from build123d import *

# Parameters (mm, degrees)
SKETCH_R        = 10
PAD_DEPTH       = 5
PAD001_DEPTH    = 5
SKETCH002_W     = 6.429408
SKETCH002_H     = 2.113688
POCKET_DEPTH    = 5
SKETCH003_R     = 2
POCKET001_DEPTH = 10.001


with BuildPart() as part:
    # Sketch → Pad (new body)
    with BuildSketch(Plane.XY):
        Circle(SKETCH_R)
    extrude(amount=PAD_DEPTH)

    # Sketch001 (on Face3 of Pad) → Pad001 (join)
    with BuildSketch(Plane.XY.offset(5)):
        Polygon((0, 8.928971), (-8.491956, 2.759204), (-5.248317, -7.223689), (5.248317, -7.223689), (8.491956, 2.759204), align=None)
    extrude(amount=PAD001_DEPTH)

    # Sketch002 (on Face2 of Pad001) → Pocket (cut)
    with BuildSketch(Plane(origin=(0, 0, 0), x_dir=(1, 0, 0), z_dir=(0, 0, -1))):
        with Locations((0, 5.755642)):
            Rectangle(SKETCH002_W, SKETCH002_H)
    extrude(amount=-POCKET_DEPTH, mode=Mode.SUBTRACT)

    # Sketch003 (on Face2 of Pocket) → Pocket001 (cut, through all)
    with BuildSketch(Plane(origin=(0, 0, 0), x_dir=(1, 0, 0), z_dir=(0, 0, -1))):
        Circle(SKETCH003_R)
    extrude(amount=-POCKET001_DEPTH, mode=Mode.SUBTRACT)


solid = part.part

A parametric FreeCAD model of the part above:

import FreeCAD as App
import Part
import Sketcher
Q = App.Units.Quantity

doc = App.newDocument("Part")
params = doc.addObject("Spreadsheet::Sheet", "Params")
for row, (alias, value) in enumerate([
    ("sketch1_diameter", "20 mm"),
    ("pad1_length", "5 mm"),
    ("pad2_length", "5 mm"),
    ("pocket1_length", "5 mm"),
    ("sketch4_diameter", "4 mm"),
], start=1):
    params.set(f"A{row}", alias)
    params.set(f"B{row}", "=" + value)
    params.setAlias(f"B{row}", alias)

body = doc.addObject("PartDesign::Body", "Body")

# Sketch on XY plane
sketch1 = body.newObject("Sketcher::SketchObject", "Sketch")
sketch1.AttachmentSupport = (doc.getObject("XY_Plane"), [""])
sketch1.MapMode = "FlatFace"
sketch1.addGeometry(Part.Circle(App.Vector(0, 0, 0), App.Vector(0, 0, 1), 10), False)
sketch1.addConstraint(Sketcher.Constraint("Coincident", 0, 3, -1, 1))
sketch1.addConstraint(Sketcher.Constraint("Diameter", 0, 20.0))
sketch1.setExpression("Constraints[1]", "Params.sketch1_diameter")
pad1 = body.newObject("PartDesign::Pad", "Pad")
pad1.Profile = sketch1
pad1.setExpression("Length", "Params.pad1_length")

# Sketch on XY plane
sketch2 = body.newObject("Sketcher::SketchObject", "Sketch001")
sketch2.AttachmentSupport = (doc.getObject("XY_Plane"), [""])
sketch2.MapMode = "FlatFace"
sketch2.AttachmentOffset = App.Placement(App.Vector(0, 0, 5), App.Rotation())
sketch2.addGeometry(Part.LineSegment(App.Vector(0, 9, 0), App.Vector(-8, 3, 0)), False)
sketch2.addGeometry(Part.LineSegment(App.Vector(-8, 3, 0), App.Vector(-5, -7, 0)), False)
sketch2.addGeometry(Part.LineSegment(App.Vector(-5, -7, 0), App.Vector(5, -7, 0)), False)
sketch2.addGeometry(Part.LineSegment(App.Vector(5, -7, 0), App.Vector(8, 3, 0)), False)
sketch2.addGeometry(Part.LineSegment(App.Vector(8, 3, 0), App.Vector(0, 9, 0)), False)
sketch2.addConstraint(Sketcher.Constraint("Coincident", 0, 2, 1, 1))
sketch2.addConstraint(Sketcher.Constraint("Coincident", 1, 2, 2, 1))
sketch2.addConstraint(Sketcher.Constraint("Coincident", 2, 2, 3, 1))
sketch2.addConstraint(Sketcher.Constraint("Coincident", 3, 2, 4, 1))
sketch2.addConstraint(Sketcher.Constraint("Coincident", 4, 2, 0, 1))
sketch2.addConstraint(Sketcher.Constraint("Horizontal", 2))
sketch2.addConstraint(Sketcher.Constraint("Symmetric", 0, 2, 3, 2, -2))
sketch2.addConstraint(Sketcher.Constraint("PointOnObject", 4, 2, -2))
sketch2.addConstraint(Sketcher.Constraint("Equal", 0, 1))
sketch2.addConstraint(Sketcher.Constraint("Equal", 1, 3))
sketch2.addConstraint(Sketcher.Constraint("Angle", 0, Q("-144.000001 deg")))
sketch2.addConstraint(Sketcher.Constraint("Angle", 1, Q("-71.999998 deg")))
sketch2.addConstraint(Sketcher.Constraint("DistanceX", 2, 1, 2, 2, 10.496634))
sketch2.addConstraint(Sketcher.Constraint("DistanceY", 1, 2, -1, 1, 7.223689))
pad2 = body.newObject("PartDesign::Pad", "Pad001")
pad2.Profile = sketch2
pad2.setExpression("Length", "Params.pad2_length")

# Sketch on XY plane
sketch3 = body.newObject("Sketcher::SketchObject", "Sketch002")
sketch3.AttachmentSupport = (doc.getObject("XY_Plane"), [""])
sketch3.MapMode = "FlatFace"
sketch3.addGeometry(Part.LineSegment(App.Vector(-3.2, -6.8, 0), App.Vector(-3.2, -4.7, 0)), False)
sketch3.addGeometry(Part.LineSegment(App.Vector(-3.2, -4.7, 0), App.Vector(3.2, -4.7, 0)), False)
sketch3.addGeometry(Part.LineSegment(App.Vector(3.2, -4.7, 0), App.Vector(3.2, -6.8, 0)), False)
sketch3.addGeometry(Part.LineSegment(App.Vector(3.2, -6.8, 0), App.Vector(-3.2, -6.8, 0)), False)
sketch3.addConstraint(Sketcher.Constraint("Coincident", 0, 2, 1, 1))
sketch3.addConstraint(Sketcher.Constraint("Coincident", 1, 2, 2, 1))
sketch3.addConstraint(Sketcher.Constraint("Coincident", 2, 2, 3, 1))
sketch3.addConstraint(Sketcher.Constraint("Coincident", 3, 2, 0, 1))
sketch3.addConstraint(Sketcher.Constraint("Vertical", 0))
sketch3.addConstraint(Sketcher.Constraint("Horizontal", 1))
sketch3.addConstraint(Sketcher.Constraint("Vertical", 2))
sketch3.addConstraint(Sketcher.Constraint("Horizontal", 3))
sketch3.addConstraint(Sketcher.Constraint("DistanceX", 1, 1, 1, 2, 6.429408))
sketch3.addConstraint(Sketcher.Constraint("DistanceY", 0, 1, 0, 2, 2.113688))
sketch3.addConstraint(Sketcher.Constraint("DistanceX", 0, 2, -1, 1, 3.214704))
sketch3.addConstraint(Sketcher.Constraint("DistanceY", 0, 2, -1, 1, 4.698798))
pocket1 = body.newObject("PartDesign::Pocket", "Pocket")
pocket1.Profile = sketch3
pocket1.setExpression("Length", "Params.pocket1_length")
pocket1.Reversed = True

# Sketch on XY plane
sketch4 = body.newObject("Sketcher::SketchObject", "Sketch003")
sketch4.AttachmentSupport = (doc.getObject("XY_Plane"), [""])
sketch4.MapMode = "FlatFace"
sketch4.addGeometry(Part.Circle(App.Vector(0, 0, 0), App.Vector(0, 0, 1), 2), False)
sketch4.addConstraint(Sketcher.Constraint("Coincident", 0, 3, -1, 1))
sketch4.addConstraint(Sketcher.Constraint("Diameter", 0, 4.0))
sketch4.setExpression("Constraints[1]", "Params.sketch4_diameter")
pocket2 = body.newObject("PartDesign::Pocket", "Pocket001")
pocket2.Profile = sketch4
pocket2.Type = "ThroughAll"
pocket2.Reversed = True

doc.recompute()
